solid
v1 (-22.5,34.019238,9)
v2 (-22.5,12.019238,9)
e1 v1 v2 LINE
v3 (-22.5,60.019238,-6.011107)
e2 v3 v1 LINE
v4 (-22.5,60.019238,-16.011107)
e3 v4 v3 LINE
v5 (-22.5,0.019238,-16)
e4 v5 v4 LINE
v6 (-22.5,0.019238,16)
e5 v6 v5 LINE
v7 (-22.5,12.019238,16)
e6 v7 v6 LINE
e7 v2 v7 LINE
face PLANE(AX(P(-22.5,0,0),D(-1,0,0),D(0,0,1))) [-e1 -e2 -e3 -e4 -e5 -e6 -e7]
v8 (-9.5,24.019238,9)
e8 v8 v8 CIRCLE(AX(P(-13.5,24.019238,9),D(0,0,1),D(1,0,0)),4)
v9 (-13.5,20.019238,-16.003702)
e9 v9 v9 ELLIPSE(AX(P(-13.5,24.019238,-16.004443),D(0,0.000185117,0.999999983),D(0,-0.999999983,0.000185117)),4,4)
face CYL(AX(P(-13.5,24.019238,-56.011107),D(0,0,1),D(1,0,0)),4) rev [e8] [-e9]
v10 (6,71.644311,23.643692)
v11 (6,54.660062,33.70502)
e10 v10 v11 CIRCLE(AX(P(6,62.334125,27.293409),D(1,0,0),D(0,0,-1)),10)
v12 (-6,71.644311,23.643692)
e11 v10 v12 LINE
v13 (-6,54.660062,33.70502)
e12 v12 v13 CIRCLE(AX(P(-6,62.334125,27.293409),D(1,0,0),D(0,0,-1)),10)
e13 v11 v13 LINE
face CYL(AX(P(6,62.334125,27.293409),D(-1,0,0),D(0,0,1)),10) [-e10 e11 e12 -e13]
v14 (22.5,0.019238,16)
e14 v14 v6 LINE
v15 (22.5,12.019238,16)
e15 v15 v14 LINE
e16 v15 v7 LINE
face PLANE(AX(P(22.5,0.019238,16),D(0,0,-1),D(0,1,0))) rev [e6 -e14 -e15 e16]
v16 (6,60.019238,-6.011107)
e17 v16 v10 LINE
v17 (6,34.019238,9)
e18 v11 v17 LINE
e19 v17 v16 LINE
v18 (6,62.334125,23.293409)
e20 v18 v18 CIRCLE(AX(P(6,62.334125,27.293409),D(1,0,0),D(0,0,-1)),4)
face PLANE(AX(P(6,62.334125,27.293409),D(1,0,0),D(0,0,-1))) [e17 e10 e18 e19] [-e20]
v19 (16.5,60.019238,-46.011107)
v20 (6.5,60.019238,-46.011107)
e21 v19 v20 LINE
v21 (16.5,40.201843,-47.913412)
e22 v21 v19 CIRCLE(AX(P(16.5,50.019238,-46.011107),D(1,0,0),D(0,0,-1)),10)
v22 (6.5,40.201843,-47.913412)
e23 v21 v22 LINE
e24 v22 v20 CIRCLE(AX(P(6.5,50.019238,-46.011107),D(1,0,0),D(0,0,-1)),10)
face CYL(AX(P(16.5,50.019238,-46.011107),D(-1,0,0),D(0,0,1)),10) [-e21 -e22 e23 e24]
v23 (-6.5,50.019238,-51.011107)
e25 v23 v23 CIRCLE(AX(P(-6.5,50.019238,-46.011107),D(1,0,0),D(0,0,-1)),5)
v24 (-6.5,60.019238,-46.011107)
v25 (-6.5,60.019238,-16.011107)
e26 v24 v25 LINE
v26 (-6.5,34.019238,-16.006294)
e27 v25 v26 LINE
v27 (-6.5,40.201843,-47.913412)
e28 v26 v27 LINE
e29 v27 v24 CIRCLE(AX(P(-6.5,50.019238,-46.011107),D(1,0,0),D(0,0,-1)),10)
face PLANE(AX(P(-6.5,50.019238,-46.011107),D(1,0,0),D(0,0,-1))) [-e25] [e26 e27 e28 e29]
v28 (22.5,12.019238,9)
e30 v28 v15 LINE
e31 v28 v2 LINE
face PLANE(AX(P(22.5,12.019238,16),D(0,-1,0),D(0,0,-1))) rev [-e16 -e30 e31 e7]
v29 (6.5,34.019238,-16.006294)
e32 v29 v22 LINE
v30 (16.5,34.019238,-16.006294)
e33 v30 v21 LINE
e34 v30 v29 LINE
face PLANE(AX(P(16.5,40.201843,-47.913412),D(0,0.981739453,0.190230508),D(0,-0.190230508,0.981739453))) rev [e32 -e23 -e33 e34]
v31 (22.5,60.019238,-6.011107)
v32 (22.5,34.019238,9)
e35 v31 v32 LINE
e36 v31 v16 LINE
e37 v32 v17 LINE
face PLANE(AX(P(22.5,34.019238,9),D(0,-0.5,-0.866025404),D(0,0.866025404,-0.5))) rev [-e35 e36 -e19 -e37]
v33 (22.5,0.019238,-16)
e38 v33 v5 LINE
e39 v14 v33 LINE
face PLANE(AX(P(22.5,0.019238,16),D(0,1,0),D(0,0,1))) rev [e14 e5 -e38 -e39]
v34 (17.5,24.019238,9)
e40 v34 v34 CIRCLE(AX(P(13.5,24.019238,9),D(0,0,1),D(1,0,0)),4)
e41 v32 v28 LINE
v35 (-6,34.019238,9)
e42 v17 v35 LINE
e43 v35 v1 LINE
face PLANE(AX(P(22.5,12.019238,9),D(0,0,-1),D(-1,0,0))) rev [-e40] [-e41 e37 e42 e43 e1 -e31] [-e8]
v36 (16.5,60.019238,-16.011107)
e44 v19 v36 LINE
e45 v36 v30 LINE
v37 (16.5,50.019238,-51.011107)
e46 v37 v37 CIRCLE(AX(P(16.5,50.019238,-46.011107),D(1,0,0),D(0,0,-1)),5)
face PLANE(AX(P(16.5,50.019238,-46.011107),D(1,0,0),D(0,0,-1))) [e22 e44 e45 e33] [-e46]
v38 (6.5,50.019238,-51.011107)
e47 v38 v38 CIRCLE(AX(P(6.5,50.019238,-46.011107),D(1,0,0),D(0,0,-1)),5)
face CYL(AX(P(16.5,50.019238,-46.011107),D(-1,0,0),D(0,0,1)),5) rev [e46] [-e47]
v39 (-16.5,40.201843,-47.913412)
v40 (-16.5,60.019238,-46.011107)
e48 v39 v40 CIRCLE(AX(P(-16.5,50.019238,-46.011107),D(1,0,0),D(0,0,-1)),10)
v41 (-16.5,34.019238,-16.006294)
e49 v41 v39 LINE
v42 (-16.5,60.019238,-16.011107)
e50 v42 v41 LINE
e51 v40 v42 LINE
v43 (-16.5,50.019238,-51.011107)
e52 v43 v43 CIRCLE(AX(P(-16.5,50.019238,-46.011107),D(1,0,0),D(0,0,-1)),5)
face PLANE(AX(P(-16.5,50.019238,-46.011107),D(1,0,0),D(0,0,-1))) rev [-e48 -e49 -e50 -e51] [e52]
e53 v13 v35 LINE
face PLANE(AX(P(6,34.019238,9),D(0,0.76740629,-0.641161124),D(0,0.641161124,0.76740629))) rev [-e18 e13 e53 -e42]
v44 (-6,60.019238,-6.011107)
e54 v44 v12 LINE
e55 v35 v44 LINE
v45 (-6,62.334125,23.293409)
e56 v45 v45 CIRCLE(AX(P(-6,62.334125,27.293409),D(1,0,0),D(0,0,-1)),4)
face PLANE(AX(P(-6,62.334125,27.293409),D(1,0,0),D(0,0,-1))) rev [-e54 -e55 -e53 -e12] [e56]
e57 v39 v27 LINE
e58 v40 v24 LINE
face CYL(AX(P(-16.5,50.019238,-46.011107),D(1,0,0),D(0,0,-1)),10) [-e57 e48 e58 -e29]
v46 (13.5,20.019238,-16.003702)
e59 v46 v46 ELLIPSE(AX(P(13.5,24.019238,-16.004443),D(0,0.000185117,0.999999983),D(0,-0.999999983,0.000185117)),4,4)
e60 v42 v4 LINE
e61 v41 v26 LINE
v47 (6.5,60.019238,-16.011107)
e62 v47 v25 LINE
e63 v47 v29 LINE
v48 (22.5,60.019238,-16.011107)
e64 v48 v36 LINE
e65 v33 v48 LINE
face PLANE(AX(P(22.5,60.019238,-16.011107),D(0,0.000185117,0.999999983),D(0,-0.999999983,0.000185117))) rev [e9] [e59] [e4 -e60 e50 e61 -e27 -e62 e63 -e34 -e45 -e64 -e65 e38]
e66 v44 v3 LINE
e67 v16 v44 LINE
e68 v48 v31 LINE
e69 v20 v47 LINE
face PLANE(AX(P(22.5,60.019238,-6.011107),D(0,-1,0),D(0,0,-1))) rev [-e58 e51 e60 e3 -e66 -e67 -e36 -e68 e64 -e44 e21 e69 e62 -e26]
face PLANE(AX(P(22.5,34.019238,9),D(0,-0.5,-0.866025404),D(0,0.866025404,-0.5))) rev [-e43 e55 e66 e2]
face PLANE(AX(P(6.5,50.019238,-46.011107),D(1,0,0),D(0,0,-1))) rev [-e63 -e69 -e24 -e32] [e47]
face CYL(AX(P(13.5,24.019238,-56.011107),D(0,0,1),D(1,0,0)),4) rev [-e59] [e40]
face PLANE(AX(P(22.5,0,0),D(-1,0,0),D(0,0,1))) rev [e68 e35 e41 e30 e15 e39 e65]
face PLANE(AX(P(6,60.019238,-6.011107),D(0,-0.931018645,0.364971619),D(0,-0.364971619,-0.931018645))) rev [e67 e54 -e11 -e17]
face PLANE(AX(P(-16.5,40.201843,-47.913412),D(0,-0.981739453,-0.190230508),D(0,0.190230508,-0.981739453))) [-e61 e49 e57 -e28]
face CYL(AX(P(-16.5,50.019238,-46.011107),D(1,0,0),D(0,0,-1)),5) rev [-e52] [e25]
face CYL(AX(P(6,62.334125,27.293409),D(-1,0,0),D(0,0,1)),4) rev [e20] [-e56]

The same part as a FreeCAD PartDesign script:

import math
import FreeCAD as App
import Part
import Sketcher

V = App.Vector
Q = App.Units.Quantity


def add_polygon(sketch, points):
    """Adds a closed chain of lines whose ends are joined by coincident constraints."""
    first, n = sketch.GeometryCount, len(points)
    for a, b in zip(points, points[1:] + points[:1]):
        sketch.addGeometry(Part.LineSegment(App.Vector(*a, 0), App.Vector(*b, 0)), False)
    for i in range(n):
        sketch.addConstraint(Sketcher.Constraint("Coincident", first + i, 2, first + (i + 1) % n, 1))

doc = App.newDocument("Part")
body = doc.addObject("PartDesign::Body", "Body")

# Sketch on YZ plane
sketch1 = body.newObject("Sketcher::SketchObject", "Sketch")
sketch1.AttachmentSupport = (doc.getObject("YZ_Plane"), [""])
sketch1.MapMode = "FlatFace"
add_polygon(sketch1, [(0.019238, 16), (0.019238, -16), (60.019238, -16.011107), (60.019238, -6.011107), (34.019238, 9), (12.019238, 9), (12.019238, 16)])  # lines 0-6
sketch1.addConstraint([
    Sketcher.Constraint("Vertical", 0),
    Sketcher.Constraint("Vertical", 2),
    Sketcher.Constraint("Horizontal", 4),
    Sketcher.Constraint("Vertical", 5),
    Sketcher.Constraint("Horizontal", 6),
    Sketcher.Constraint("DistanceX", 4, 2, 4, 1, Q("22 mm")),
    Sketcher.Constraint("DistanceX", 6, 2, 6, 1, Q("12 mm")),
    Sketcher.Constraint("DistanceY", 0, 2, 0, 1, Q("32 mm")),
    Sketcher.Constraint("DistanceY", 2, 1, 2, 2, Q("10 mm")),
    Sketcher.Constraint("DistanceY", 5, 1, 5, 2, Q("7 mm")),
    Sketcher.Constraint("Angle", 3, Q("150 deg")),
    Sketcher.Constraint("Distance", 1, Q("60.000001 mm")),
    Sketcher.Constraint("DistanceY", 0, 2, -1, 1, Q("16 mm")),
    Sketcher.Constraint("DistanceX", -1, 1, 0, 2, Q("0.019238 mm")),
])
pad1 = body.newObject("PartDesign::Pad", "Pad")
pad1.Profile = sketch1
pad1.Length = 45
pad1.Midplane = True

# Sketch on YZ plane
sketch2 = body.newObject("Sketcher::SketchObject", "Sketch001")
sketch2.AttachmentSupport = (doc.getObject("YZ_Plane"), [""])
sketch2.MapMode = "FlatFace"
sketch2.AttachmentOffset = App.Placement(V(0, 0, 6.5), App.Rotation())
sketch2.addGeometry([
    Part.LineSegment(V(60.019238, -16.011107, 0), V(34.019238, -16.006294, 0)),  # 0
    Part.LineSegment(V(34.019238, -16.006294, 0), V(40.201843, -47.913412, 0)),  # 1
    Part.ArcOfCircle(Part.Circle(V(50.019238, -46.011107, 0), V(0, 0, 1), 10), math.radians(-169.033763), math.radians(0)),  # 2
    Part.LineSegment(V(60.019238, -46.011107, 0), V(60.019238, -16.011107, 0)),  # 3
    Part.Circle(V(50.019238, -46.011107, 0), V(0, 0, 1), 5),  # 4
], False)
sketch2.addConstraint([
    Sketcher.Constraint("Coincident", 0, 2, 1, 1),
    Sketcher.Constraint("Tangent", 1, 2, 2, 1),
    Sketcher.Constraint("Tangent", 2, 2, 3, 1),
    Sketcher.Constraint("Coincident", 3, 2, 0, 1),
    Sketcher.Constraint("Vertical", 3),
    Sketcher.Constraint("Coincident", 4, 3, 2, 3),
    Sketcher.Constraint("Diameter", 4, Q("10 mm")),
    Sketcher.Constraint("Radius", 2, Q("10 mm")),
    Sketcher.Constraint("DistanceY", 3, 1, 3, 2, Q("30 mm")),
    Sketcher.Constraint("Distance", 0, Q("26 mm")),
    Sketcher.Constraint("DistanceX", -1, 1, 0, 2, Q("34.019238 mm")),
    Sketcher.Constraint("DistanceY", 1, 2, 0, 2, Q("31.907118 mm")),
    Sketcher.Constraint("DistanceY", 2, 3, -1, 1, Q("46.011107 mm")),
])
pad2 = body.newObject("PartDesign::Pad", "Pad001")
pad2.Profile = sketch2
pad2.Length = 10

# Sketch on YZ plane
sketch3 = body.newObject("Sketcher::SketchObject", "Sketch002")
sketch3.AttachmentSupport = (doc.getObject("YZ_Plane"), [""])
sketch3.MapMode = "FlatFace"
sketch3.AttachmentOffset = App.Placement(V(0, 0, -16.5), App.Rotation())
sketch3.addGeometry([
    Part.LineSegment(V(60.019238, -16.011107, 0), V(34.019238, -16.006294, 0)),  # 0
    Part.LineSegment(V(34.019238, -16.006294, 0), V(40.201843, -47.913412, 0)),  # 1
    Part.ArcOfCircle(Part.Circle(V(50.019238, -46.011107, 0), V(0, 0, 1), 10), math.radians(-169.033763), math.radians(0)),  # 2
    Part.LineSegment(V(60.019238, -46.011107, 0), V(60.019238, -16.011107, 0)),  # 3
    Part.Circle(V(50.019238, -46.011107, 0), V(0, 0, 1), 5),  # 4
], False)
sketch3.addConstraint([
    Sketcher.Constraint("Coincident", 0, 2, 1, 1),
    Sketcher.Constraint("Tangent", 1, 2, 2, 1),
    Sketcher.Constraint("Tangent", 2, 2, 3, 1),
    Sketcher.Constraint("Coincident", 3, 2, 0, 1),
    Sketcher.Constraint("Vertical", 3),
    Sketcher.Constraint("Coincident", 4, 3, 2, 3),
    Sketcher.Constraint("Diameter", 4, Q("10 mm")),
    Sketcher.Constraint("Radius", 2, Q("10 mm")),
    Sketcher.Constraint("DistanceY", 3, 1, 3, 2, Q("30 mm")),
    Sketcher.Constraint("Distance", 0, Q("26 mm")),
    Sketcher.Constraint("DistanceX", -1, 1, 0, 2, Q("34.019238 mm")),
    Sketcher.Constraint("DistanceY", 1, 2, 0, 2, Q("31.907118 mm")),
    Sketcher.Constraint("DistanceY", 2, 3, -1, 1, Q("46.011107 mm")),
])
pad3 = body.newObject("PartDesign::Pad", "Pad002")
pad3.Profile = sketch3
pad3.Length = 10

# Sketch on YZ plane
sketch4 = body.newObject("Sketcher::SketchObject", "Sketch003")
sketch4.AttachmentSupport = (doc.getObject("YZ_Plane"), [""])
sketch4.MapMode = "FlatFace"
sketch4.addGeometry([
    Part.LineSegment(V(34.019238, 9, 0), V(60.019238, -6.011107, 0)),  # 0
    Part.LineSegment(V(60.019238, -6.011107, 0), V(71.644311, 23.643692, 0)),  # 1
    Part.ArcOfCircle(Part.Circle(V(62.334125, 27.293409, 0), V(0, 0, 1), 10), math.radians(-21.405836), math.radians(140.121544)),  # 2
    Part.LineSegment(V(54.660062, 33.70502, 0), V(34.019238, 9, 0)),  # 3
    Part.Circle(V(62.334125, 27.293409, 0), V(0, 0, 1), 4),  # 4
], False)
sketch4.addConstraint([
    Sketcher.Constraint("Coincident", 0, 2, 1, 1),
    Sketcher.Constraint("Tangent", 1, 2, 2, 1),
    Sketcher.Constraint("Tangent", 2, 2, 3, 1),
    Sketcher.Constraint("Coincident", 3, 2, 0, 1),
    Sketcher.Constraint("Coincident", 4, 3, 2, 3),
    Sketcher.Constraint("Diameter", 4, Q("8 mm")),
    Sketcher.Constraint("Radius", 2, Q("10 mm")),
    Sketcher.Constraint("Angle", 0, Q("-30 deg")),
    Sketcher.Constraint("DistanceY", -1, 1, 3, 2, Q("9 mm")),
    Sketcher.Constraint("DistanceX", 3, 2, 0, 2, Q("26 mm")),
    Sketcher.Constraint("DistanceY", 0, 2, 1, 2, Q("29.654799 mm")),
    Sketcher.Constraint("Distance", 3, Q("32.192882 mm")),
    Sketcher.Constraint("DistanceX", -1, 1, 1, 2, Q("71.644311 mm")),
])
pad4 = body.newObject("PartDesign::Pad", "Pad003")
pad4.Profile = sketch4
pad4.Length = 12
pad4.Midplane = True

# Sketch on XY plane
sketch5 = body.newObject("Sketcher::SketchObject", "Sketch004")
sketch5.AttachmentSupport = (doc.getObject("XY_Plane"), [""])
sketch5.MapMode = "FlatFace"
sketch5.AttachmentOffset = App.Placement(V(0, 0, 9), App.Rotation())
sketch5.addGeometry([
    Part.Circle(V(-13.5, 24.019238, 0), V(0, 0, 1), 4),
    Part.Circle(V(13.5, 24.019238, 0), V(0, 0, 1), 4),
], False)
sketch5.addConstraint([
    Sketcher.Constraint("Equal", 0, 1),
    Sketcher.Constraint("Symmetric", 0, 3, 1, 3, -2),
    Sketcher.Constraint("Diameter", 0, Q("8 mm")),
    Sketcher.Constraint("DistanceX", 0, 3, 1, 3, Q("27 mm")),
    Sketcher.Constraint("DistanceY", -1, 1, 0, 3, Q("24.019238 mm")),
])
pocket1 = body.newObject("PartDesign::Pocket", "Pocket")
pocket1.Profile = sketch5
pocket1.Type = "ThroughAll"

doc.recompute()
